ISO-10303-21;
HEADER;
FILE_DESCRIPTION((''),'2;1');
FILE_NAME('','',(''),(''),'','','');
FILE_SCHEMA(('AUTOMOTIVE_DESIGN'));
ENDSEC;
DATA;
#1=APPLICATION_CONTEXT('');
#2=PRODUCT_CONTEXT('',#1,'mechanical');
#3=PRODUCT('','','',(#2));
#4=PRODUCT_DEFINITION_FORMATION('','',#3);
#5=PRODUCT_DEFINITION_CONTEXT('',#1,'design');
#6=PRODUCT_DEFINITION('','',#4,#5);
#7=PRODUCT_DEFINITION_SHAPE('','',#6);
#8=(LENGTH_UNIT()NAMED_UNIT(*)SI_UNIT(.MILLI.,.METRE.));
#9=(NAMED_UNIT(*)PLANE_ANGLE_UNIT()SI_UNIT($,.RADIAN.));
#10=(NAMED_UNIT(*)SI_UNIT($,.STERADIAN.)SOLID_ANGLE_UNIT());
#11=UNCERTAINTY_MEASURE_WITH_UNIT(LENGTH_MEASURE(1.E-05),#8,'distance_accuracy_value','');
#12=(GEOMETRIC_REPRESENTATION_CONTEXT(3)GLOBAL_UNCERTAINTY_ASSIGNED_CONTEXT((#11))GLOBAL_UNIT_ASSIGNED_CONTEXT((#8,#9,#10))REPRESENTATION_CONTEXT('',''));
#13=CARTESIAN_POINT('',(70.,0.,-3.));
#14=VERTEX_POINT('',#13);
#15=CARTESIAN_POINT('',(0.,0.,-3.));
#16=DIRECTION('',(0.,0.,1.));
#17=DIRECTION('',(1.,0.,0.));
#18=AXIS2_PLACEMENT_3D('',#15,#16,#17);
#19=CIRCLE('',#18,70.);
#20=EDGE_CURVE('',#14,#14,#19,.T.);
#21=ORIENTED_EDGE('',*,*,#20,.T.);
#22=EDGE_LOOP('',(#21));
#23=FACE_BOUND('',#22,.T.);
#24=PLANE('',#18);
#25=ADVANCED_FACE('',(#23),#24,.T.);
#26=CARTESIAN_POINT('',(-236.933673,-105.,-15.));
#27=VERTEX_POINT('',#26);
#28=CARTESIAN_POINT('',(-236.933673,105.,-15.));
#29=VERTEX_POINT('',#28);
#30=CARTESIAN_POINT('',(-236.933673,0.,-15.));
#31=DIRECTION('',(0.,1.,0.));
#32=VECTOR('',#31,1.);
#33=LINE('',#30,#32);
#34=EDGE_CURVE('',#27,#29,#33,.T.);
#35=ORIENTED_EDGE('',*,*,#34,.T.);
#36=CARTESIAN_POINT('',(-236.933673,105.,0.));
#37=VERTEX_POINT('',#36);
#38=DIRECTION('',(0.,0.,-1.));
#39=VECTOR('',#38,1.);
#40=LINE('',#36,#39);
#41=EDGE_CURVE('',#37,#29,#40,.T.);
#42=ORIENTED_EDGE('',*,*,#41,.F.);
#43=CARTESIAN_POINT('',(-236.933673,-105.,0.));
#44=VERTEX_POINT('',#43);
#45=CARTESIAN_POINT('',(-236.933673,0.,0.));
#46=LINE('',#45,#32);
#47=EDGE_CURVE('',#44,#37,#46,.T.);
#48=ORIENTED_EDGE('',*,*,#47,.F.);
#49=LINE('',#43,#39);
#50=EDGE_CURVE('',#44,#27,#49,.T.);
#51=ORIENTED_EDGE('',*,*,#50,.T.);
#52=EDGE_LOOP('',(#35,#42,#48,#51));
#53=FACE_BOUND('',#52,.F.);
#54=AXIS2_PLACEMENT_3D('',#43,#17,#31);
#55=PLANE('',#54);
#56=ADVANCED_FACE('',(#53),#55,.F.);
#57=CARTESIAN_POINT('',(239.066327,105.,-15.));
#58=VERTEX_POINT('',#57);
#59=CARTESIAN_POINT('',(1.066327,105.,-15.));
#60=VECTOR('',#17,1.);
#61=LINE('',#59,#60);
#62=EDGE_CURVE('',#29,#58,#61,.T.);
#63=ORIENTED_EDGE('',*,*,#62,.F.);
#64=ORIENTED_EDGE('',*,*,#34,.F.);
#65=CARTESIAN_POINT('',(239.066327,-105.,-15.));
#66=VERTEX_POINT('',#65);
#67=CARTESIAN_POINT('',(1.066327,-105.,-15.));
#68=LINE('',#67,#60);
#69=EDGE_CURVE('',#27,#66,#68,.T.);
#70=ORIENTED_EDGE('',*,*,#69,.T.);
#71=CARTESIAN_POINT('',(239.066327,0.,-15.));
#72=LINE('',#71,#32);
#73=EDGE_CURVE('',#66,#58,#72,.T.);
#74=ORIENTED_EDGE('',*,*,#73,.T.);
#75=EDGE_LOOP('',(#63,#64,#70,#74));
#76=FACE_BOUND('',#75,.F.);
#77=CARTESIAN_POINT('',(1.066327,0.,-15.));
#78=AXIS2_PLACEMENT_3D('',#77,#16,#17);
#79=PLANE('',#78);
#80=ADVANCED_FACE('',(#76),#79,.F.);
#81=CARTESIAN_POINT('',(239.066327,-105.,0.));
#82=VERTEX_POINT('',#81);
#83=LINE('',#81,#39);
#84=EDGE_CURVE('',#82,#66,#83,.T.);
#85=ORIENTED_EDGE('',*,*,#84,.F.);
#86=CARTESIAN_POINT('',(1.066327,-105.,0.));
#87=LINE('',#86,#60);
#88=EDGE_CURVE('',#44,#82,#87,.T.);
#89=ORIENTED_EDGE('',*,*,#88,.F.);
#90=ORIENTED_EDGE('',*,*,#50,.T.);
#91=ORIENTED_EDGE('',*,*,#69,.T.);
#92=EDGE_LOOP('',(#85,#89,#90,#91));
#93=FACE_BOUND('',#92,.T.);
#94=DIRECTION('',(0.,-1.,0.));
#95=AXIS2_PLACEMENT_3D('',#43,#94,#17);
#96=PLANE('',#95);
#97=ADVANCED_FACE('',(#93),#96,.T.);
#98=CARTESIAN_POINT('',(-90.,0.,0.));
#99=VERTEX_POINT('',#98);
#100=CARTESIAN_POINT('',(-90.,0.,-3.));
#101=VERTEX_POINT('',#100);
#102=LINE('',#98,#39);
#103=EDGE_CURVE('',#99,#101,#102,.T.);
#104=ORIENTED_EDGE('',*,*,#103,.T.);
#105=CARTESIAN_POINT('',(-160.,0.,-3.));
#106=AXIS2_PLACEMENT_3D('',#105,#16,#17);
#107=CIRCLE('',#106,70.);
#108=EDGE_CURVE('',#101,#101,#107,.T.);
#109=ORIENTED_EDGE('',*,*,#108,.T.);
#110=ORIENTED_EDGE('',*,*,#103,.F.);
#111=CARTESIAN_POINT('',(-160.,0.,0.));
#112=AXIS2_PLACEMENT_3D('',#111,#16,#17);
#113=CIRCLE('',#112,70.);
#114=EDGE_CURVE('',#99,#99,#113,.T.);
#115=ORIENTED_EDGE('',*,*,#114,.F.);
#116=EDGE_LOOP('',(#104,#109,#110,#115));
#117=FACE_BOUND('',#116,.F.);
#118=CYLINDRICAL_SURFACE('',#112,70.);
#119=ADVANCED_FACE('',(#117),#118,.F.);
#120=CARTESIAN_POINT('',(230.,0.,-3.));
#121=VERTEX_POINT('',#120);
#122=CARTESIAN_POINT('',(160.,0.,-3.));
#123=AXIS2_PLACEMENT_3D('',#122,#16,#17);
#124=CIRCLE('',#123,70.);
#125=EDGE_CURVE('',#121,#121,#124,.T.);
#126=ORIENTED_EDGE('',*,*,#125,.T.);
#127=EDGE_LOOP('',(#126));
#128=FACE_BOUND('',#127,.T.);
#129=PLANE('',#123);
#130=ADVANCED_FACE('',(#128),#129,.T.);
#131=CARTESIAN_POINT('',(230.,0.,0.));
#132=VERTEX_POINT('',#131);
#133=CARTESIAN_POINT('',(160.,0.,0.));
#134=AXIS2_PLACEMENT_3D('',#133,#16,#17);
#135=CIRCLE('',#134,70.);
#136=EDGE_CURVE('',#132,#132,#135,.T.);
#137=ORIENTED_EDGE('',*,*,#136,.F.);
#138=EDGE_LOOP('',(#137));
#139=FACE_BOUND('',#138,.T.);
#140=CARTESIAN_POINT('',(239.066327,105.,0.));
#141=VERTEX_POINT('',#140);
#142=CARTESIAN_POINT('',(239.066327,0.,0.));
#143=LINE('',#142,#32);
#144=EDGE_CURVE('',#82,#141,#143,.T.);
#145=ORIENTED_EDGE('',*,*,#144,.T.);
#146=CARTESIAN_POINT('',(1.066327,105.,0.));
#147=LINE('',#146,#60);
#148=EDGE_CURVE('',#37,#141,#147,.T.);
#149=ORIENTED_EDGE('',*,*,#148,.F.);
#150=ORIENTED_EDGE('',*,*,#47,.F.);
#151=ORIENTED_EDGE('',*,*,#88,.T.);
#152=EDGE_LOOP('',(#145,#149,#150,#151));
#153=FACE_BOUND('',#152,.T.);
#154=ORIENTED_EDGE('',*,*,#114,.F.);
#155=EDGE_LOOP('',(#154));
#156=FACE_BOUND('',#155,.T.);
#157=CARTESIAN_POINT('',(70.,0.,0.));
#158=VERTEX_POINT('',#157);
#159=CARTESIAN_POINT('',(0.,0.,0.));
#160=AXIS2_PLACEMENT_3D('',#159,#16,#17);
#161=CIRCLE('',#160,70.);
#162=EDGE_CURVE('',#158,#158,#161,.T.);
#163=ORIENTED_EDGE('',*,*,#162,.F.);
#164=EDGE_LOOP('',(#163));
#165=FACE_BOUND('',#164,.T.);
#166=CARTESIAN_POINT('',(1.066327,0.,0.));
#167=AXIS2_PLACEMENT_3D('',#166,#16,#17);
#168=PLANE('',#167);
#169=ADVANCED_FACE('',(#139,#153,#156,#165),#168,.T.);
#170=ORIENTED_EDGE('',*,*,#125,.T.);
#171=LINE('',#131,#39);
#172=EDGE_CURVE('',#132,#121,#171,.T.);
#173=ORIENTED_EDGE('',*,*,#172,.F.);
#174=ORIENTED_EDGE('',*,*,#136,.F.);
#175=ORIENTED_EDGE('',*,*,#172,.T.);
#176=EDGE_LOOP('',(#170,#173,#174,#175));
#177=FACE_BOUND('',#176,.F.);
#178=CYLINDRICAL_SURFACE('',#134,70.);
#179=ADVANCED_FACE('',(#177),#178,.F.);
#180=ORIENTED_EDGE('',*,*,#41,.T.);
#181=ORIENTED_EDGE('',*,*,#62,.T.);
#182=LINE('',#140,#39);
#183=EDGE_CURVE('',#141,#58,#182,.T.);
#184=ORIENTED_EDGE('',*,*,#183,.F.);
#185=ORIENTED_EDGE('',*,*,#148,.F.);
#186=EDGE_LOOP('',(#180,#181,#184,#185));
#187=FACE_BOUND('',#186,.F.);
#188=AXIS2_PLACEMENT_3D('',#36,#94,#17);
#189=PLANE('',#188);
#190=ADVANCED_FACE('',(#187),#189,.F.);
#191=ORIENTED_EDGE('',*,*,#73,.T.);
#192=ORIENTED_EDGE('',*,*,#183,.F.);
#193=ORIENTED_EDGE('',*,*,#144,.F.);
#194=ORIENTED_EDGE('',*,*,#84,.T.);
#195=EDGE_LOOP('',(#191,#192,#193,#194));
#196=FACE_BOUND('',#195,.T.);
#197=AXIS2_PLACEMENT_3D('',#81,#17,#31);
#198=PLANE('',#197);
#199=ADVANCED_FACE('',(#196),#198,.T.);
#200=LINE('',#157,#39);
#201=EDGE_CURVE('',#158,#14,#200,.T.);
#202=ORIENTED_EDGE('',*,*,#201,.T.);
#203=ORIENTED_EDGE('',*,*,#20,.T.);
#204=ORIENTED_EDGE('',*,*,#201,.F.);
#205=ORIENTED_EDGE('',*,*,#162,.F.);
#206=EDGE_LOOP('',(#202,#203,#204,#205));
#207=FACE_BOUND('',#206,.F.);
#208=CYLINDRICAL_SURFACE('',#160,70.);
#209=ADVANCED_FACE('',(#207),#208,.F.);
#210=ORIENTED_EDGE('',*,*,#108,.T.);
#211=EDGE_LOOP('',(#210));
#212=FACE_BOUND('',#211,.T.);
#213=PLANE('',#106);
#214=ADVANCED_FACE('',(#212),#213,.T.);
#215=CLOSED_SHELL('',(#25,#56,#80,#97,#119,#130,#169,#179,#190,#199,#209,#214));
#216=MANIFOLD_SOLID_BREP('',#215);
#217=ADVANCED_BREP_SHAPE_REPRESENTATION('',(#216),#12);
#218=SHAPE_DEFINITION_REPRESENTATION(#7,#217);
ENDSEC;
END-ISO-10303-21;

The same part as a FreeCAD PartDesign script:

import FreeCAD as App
import Part
import Sketcher

V = App.Vector
Q = App.Units.Quantity

doc = App.newDocument("Part")
body = doc.addObject("PartDesign::Body", "Body")

# Sketch on XY plane
sketch1 = doc.addObject("Sketcher::SketchObject", "Sketch")
body.addObject(sketch1)
sketch1.AttachmentSupport = (doc.XY_Plane, [""])
sketch1.MapMode = "FlatFace"
sketch1.addGeometry(Part.LineSegment(V(-237, 105, 0), V(-237, -105, 0)), False)
sketch1.addGeometry(Part.LineSegment(V(-237, -105, 0), V(239, -105, 0)), False)
sketch1.addGeometry(Part.LineSegment(V(239, -105, 0), V(239, 105, 0)), False)
sketch1.addGeometry(Part.LineSegment(V(239, 105, 0), V(-237, 105, 0)), False)
sketch1.addConstraint(Sketcher.Constraint("Coincident", 0, 2, 1, 1))
sketch1.addConstraint(Sketcher.Constraint("Coincident", 1, 2, 2, 1))
sketch1.addConstraint(Sketcher.Constraint("Coincident", 2, 2, 3, 1))
sketch1.addConstraint(Sketcher.Constraint("Coincident", 3, 2, 0, 1))
sketch1.addConstraint(Sketcher.Constraint("Vertical", 0))
sketch1.addConstraint(Sketcher.Constraint("Horizontal", 1))
sketch1.addConstraint(Sketcher.Constraint("Vertical", 2))
sketch1.addConstraint(Sketcher.Constraint("Horizontal", 3))
sketch1.addConstraint(Sketcher.Constraint("DistanceX", 1, 1, 1, 2, Q("476 mm")))
sketch1.addConstraint(Sketcher.Constraint("DistanceY", 0, 2, 0, 1, Q("210 mm")))
sketch1.addConstraint(Sketcher.Constraint("DistanceY", 0, 2, -1, 1, Q("105 mm")))
sketch1.addConstraint(Sketcher.Constraint("DistanceX", 0, 2, -1, 1, Q("236.933673 mm")))
pad1 = doc.addObject("PartDesign::Pad", "Pad")
body.addObject(pad1)
pad1.Profile = sketch1
pad1.Length = 15
pad1.Reversed = True

# Sketch on XY plane
sketch2 = doc.addObject("Sketcher::SketchObject", "Sketch001")
body.addObject(sketch2)
sketch2.AttachmentSupport = (doc.XY_Plane, [""])
sketch2.MapMode = "FlatFace"
sketch2.addGeometry(Part.Circle(V(-160, 0, 0), V(0, 0, 1), 70), False)
sketch2.addGeometry(Part.Circle(V(0, 0, 0), V(0, 0, 1), 70), False)
sketch2.addGeometry(Part.Circle(V(160, 0, 0), V(0, 0, 1), 70), False)
sketch2.addConstraint(Sketcher.Constraint("Coincident", 1, 3, -1, 1))
sketch2.addConstraint(Sketcher.Constraint("Equal", 0, 1))
sketch2.addConstraint(Sketcher.Constraint("Equal", 1, 2))
sketch2.addConstraint(Sketcher.Constraint("Symmetric", 0, 3, 2, 3, -1, 1))
sketch2.addConstraint(Sketcher.Constraint("PointOnObject", 0, 3, -1))
sketch2.addConstraint(Sketcher.Constraint("Diameter", 0, Q("140 mm")))
sketch2.addConstraint(Sketcher.Constraint("DistanceX", 0, 3, -1, 1, Q("160 mm")))
pocket1 = doc.addObject("PartDesign::Pocket", "Pocket")
body.addObject(pocket1)
pocket1.Profile = sketch2
pocket1.Length = 3

doc.recompute()
